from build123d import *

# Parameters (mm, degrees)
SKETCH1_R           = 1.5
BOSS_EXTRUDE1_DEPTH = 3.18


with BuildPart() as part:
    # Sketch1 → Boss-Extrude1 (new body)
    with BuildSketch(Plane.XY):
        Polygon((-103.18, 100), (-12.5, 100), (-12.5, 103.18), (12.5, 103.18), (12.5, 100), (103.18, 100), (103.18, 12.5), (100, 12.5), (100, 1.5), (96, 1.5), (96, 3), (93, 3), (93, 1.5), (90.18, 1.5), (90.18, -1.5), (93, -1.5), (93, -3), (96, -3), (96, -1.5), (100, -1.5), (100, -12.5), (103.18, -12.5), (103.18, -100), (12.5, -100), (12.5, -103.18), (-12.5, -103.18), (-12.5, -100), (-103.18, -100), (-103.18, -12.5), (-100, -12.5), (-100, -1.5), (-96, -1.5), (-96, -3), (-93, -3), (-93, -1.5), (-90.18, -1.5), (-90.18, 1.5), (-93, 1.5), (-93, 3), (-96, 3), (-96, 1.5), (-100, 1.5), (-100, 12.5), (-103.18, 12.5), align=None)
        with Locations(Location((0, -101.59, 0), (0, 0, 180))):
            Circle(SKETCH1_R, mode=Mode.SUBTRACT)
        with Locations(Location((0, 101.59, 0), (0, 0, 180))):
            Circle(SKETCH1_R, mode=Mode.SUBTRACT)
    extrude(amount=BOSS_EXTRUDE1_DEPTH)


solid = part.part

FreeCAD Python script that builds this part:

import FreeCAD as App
import Part
import Sketcher
from FreeCAD import Vector


def add_polygon(sketch, points):
    """Adds a closed chain of lines whose ends are joined by coincident constraints."""
    first, n = sketch.GeometryCount, len(points)
    for a, b in zip(points, points[1:] + points[:1]):
        sketch.addGeometry(Part.LineSegment(App.Vector(*a, 0), App.Vector(*b, 0)), False)
    for i in range(n):
        sketch.addConstraint(Sketcher.Constraint("Coincident", first + i, 2, first + (i + 1) % n, 1))

doc = App.newDocument("Part")
body = doc.addObject("PartDesign::Body", "Body")

# Sketch on XY plane
sketch1 = doc.addObject("Sketcher::SketchObject", "Sketch")
body.addObject(sketch1)
sketch1.AttachmentSupport = (doc.XY_Plane, [""])
sketch1.MapMode = "FlatFace"
add_polygon(sketch1, [(-12.5, 100), (-103.2, 100), (-103.2, 12.5), (-100, 12.5), (-100, 1.5), (-96, 1.5), (-96, 3), (-93, 3), (-93, 1.5), (-90.2, 1.5), (-90.2, -1.5), (-93, -1.5), (-93, -3), (-96, -3), (-96, -1.5), (-100, -1.5), (-100, -12.5), (-103.2, -12.5), (-103.2, -100), (-12.5, -100), (-12.5, -103.2), (12.5, -103.2), (12.5, -100), (103.2, -100), (103.2, -12.5), (100, -12.5), (100, -1.5), (96, -1.5), (96, -3), (93, -3), (93, -1.5), (90.2, -1.5), (90.2, 1.5), (93, 1.5), (93, 3), (96, 3), (96, 1.5), (100, 1.5), (100, 12.5), (103.2, 12.5), (103.2, 100), (12.5, 100), (12.5, 103.2), (-12.5, 103.2)])  # lines 0-43
sketch1.addGeometry(Part.Circle(Vector(0, -101.6, 0), Vector(0, 0, 1), 1.5), False)  # 44
sketch1.addGeometry(Part.Circle(Vector(0, 101.6, 0), Vector(0, 0, 1), 1.5), False)  # 45
sketch1.addConstraint([
    Sketcher.Constraint("Horizontal", 0),
    Sketcher.Constraint("Vertical", 1),
    Sketcher.Constraint("Horizontal", 2),
    Sketcher.Constraint("Vertical", 3),
    Sketcher.Constraint("Horizontal", 4),
    Sketcher.Constraint("Vertical", 5),
    Sketcher.Constraint("Horizontal", 6),
    Sketcher.Constraint("Vertical", 7),
    Sketcher.Constraint("Horizontal", 8),
    Sketcher.Constraint("Vertical", 9),
    Sketcher.Constraint("Horizontal", 10),
    Sketcher.Constraint("Vertical", 11),
    Sketcher.Constraint("Horizontal", 12),
    Sketcher.Constraint("Vertical", 13),
    Sketcher.Constraint("Horizontal", 14),
    Sketcher.Constraint("Vertical", 15),
    Sketcher.Constraint("Horizontal", 16),
    Sketcher.Constraint("Vertical", 17),
    Sketcher.Constraint("Horizontal", 18),
    Sketcher.Constraint("Vertical", 19),
    Sketcher.Constraint("Horizontal", 20),
    Sketcher.Constraint("Vertical", 21),
    Sketcher.Constraint("Horizontal", 22),
    Sketcher.Constraint("Vertical", 23),
    Sketcher.Constraint("Horizontal", 24),
    Sketcher.Constraint("Vertical", 25),
    Sketcher.Constraint("Horizontal", 26),
    Sketcher.Constraint("Vertical", 27),
    Sketcher.Constraint("Horizontal", 28),
    Sketcher.Constraint("Vertical", 29),
    Sketcher.Constraint("Horizontal", 30),
    Sketcher.Constraint("Vertical", 31),
    Sketcher.Constraint("Horizontal", 32),
    Sketcher.Constraint("Vertical", 33),
    Sketcher.Constraint("Horizontal", 34),
    Sketcher.Constraint("Vertical", 35),
    Sketcher.Constraint("Horizontal", 36),
    Sketcher.Constraint("Vertical", 37),
    Sketcher.Constraint("Horizontal", 38),
    Sketcher.Constraint("Vertical", 39),
    Sketcher.Constraint("Horizontal", 40),
    Sketcher.Constraint("Vertical", 41),
    Sketcher.Constraint("Horizontal", 42),
    Sketcher.Constraint("Vertical", 43),
    Sketcher.Constraint("Equal", 44, 45),
    Sketcher.Constraint("Symmetric", 44, 3, 45, 3, -1, 1),
    Sketcher.Constraint("Symmetric", 0, 2, 22, 2, -1, 1),
    Sketcher.Constraint("Symmetric", 2, 2, 24, 2, -1, 1),
    Sketcher.Constraint("Symmetric", 4, 2, 26, 2, -1, 1),
    Sketcher.Constraint("Symmetric", 6, 2, 28, 2, -1, 1),
    Sketcher.Constraint("Symmetric", 8, 2, 30, 2, -1, 1),
    Sketcher.Constraint("Symmetric", 10, 2, 32, 2, -1, 1),
    Sketcher.Constraint("Symmetric", 12, 2, 34, 2, -1, 1),
    Sketcher.Constraint("Symmetric", 14, 2, 36, 2, -1, 1),
    Sketcher.Constraint("Symmetric", 16, 2, 38, 2, -1, 1),
    Sketcher.Constraint("Symmetric", 18, 2, 40, 2, -1, 1),
    Sketcher.Constraint("Symmetric", 20, 2, 42, 2, -1, 1),
    Sketcher.Constraint("Symmetric", 18, 2, 21, 2, -2),
    Sketcher.Constraint("Symmetric", 16, 2, 23, 2, -2),
    Sketcher.Constraint("Symmetric", 14, 2, 25, 2, -2),
    Sketcher.Constraint("Symmetric", 12, 2, 27, 2, -2),
    Sketcher.Constraint("Symmetric", 10, 2, 29, 2, -2),
    Sketcher.Constraint("PointOnObject", 44, 3, -2),
    Sketcher.Constraint("Horizontal", 4, 2, 7, 2),
    Sketcher.Constraint("Equal", 34, 9),
    Sketcher.Constraint("Equal", 38, 19),
    Sketcher.Constraint("Diameter", 44, 3.0),
    Sketcher.Constraint("DistanceX", 4, 1, 4, 2, 4.0),
    Sketcher.Constraint("DistanceX", 6, 1, 6, 2, 3.0),
    Sketcher.Constraint("DistanceX", 20, 1, 20, 2, 25.0),
    Sketcher.Constraint("DistanceY", 3, 2, 3, 1, 11.0),
    Sketcher.Constraint("DistanceY", 1, 2, 1, 1, 87.5),
    Sketcher.Constraint("DistanceY", 5, 1, 5, 2, 1.5),
    Sketcher.Constraint("DistanceX", 2, 2, -1, 1, 100.0),
    Sketcher.Constraint("DistanceX", 0, 2, 0, 1, 90.68),
    Sketcher.Constraint("DistanceX", 8, 1, 8, 2, 2.82),
    Sketcher.Constraint("DistanceY", 44, 3, -1, 1, 101.59),
])
pad1 = doc.addObject("PartDesign::Pad", "Pad")
body.addObject(pad1)
pad1.Profile = sketch1
pad1.Length = 3.18

doc.recompute()
